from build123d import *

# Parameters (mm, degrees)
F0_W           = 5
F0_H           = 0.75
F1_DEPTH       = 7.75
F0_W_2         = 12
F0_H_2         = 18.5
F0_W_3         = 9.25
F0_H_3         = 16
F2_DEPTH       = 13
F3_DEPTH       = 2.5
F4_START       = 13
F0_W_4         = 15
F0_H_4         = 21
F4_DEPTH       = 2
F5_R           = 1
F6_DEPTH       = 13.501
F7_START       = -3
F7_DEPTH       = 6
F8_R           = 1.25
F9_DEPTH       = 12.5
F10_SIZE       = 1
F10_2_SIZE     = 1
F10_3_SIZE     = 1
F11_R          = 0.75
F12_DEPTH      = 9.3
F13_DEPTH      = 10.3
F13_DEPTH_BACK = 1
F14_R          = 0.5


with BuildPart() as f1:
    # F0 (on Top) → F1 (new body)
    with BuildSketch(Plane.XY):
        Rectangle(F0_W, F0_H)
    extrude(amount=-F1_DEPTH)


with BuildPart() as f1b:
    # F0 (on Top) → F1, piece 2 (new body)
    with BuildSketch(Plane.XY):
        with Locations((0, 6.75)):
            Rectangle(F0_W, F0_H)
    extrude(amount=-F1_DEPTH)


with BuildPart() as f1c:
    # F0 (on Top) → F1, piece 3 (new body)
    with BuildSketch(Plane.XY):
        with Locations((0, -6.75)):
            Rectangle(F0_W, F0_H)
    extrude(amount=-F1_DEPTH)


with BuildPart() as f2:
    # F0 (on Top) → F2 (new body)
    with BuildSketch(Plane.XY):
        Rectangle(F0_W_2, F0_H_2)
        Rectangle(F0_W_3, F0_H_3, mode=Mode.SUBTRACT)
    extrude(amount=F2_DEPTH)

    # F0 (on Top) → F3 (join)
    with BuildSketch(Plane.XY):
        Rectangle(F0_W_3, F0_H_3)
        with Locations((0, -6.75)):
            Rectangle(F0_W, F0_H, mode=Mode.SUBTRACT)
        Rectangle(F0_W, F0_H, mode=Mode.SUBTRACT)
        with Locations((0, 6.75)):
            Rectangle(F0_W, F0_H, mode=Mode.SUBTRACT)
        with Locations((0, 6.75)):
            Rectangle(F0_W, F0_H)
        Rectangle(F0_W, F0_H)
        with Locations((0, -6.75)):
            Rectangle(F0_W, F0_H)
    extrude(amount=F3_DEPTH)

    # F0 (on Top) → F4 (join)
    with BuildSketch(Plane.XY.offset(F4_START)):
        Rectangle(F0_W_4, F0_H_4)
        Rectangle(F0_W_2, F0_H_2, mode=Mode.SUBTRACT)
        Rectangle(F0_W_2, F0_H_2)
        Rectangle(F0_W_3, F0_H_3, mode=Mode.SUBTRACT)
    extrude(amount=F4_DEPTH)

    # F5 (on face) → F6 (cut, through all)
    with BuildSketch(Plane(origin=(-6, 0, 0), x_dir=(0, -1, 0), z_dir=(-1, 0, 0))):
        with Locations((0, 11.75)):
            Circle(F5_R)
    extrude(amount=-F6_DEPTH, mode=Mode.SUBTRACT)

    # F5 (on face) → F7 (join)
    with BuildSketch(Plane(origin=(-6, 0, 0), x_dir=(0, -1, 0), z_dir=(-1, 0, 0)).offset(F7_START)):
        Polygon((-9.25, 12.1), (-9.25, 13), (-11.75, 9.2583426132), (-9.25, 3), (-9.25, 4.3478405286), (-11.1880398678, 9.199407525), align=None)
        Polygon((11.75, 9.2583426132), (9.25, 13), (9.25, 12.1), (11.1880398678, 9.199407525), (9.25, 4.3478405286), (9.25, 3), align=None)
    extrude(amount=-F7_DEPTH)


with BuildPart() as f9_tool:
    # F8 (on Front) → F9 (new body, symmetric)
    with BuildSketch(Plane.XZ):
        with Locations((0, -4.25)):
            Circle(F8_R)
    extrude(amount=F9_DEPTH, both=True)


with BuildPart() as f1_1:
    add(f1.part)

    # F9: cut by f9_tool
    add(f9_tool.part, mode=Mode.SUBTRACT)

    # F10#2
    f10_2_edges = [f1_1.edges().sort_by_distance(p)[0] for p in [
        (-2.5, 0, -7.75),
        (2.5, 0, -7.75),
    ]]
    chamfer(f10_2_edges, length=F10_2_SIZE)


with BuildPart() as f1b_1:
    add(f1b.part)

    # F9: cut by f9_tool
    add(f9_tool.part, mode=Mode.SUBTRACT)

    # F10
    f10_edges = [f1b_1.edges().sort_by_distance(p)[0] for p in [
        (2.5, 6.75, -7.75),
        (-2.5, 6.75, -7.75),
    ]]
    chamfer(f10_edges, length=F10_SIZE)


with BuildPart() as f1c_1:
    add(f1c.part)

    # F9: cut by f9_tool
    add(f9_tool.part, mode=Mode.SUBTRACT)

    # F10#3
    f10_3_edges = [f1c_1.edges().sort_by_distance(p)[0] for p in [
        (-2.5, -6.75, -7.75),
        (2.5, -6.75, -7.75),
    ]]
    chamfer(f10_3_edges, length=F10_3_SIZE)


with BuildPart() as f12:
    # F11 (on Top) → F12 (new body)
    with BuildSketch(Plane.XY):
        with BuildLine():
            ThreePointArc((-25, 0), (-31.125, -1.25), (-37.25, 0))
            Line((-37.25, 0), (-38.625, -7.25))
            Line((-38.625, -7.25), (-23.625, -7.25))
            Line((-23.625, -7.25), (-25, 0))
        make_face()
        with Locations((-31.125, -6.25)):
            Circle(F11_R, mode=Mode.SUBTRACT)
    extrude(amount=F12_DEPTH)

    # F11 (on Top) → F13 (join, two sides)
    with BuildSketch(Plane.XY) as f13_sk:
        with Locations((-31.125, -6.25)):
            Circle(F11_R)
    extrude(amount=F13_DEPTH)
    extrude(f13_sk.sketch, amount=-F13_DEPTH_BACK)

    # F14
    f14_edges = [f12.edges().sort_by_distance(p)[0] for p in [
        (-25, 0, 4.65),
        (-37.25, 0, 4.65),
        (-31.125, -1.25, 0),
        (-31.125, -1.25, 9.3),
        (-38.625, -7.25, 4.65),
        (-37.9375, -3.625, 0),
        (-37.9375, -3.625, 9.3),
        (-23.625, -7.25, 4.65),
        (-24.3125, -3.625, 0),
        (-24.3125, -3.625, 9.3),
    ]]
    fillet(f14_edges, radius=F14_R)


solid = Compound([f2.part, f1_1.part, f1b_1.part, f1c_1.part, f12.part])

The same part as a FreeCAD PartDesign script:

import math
import FreeCAD as App
import Part
import Sketcher
from FreeCAD import Vector


def edges_at(feature, points):
    """Names of the edges that pass closest to the given points."""
    edges = feature.Shape.Edges
    near = lambda p: min(range(len(edges)), key=lambda i: edges[i].distToShape(Part.Vertex(*p))[0])
    return sorted({f"Edge{near(p) + 1}" for p in points})


def add_polygon(sketch, points):
    """Adds a closed chain of lines whose ends are joined by coincident constraints."""
    first, n = sketch.GeometryCount, len(points)
    for a, b in zip(points, points[1:] + points[:1]):
        sketch.addGeometry(Part.LineSegment(App.Vector(*a, 0), App.Vector(*b, 0)), False)
    for i in range(n):
        sketch.addConstraint(Sketcher.Constraint("Coincident", first + i, 2, first + (i + 1) % n, 1))

doc = App.newDocument("Part")
body = doc.addObject("PartDesign::Body", "Body")

sketch1 = body.newObject("Sketcher::SketchObject", "Sketch")
sketch1.AttachmentSupport = (doc.getObject("XY_Plane"), [""])
sketch1.MapMode = "FlatFace"
add_polygon(sketch1, [(-2.5, 0.375), (-2.5, -0.375), (2.5, -0.375), (2.5, 0.375)])
sketch1.addConstraint([
    Sketcher.Constraint("Vertical", 0),
    Sketcher.Constraint("Horizontal", 1),
    Sketcher.Constraint("Vertical", 2),
    Sketcher.Constraint("Horizontal", 3),
    Sketcher.Constraint("Symmetric", 0, 2, 2, 2, -1, 1),
    Sketcher.Constraint("DistanceX", 1, 1, 1, 2, 5.0),
    Sketcher.Constraint("DistanceY", 0, 2, 0, 1, 0.75),
])
pad1 = body.newObject("PartDesign::Pad", "Pad")
pad1.Profile = sketch1
pad1.Length = 7.75
pad1.Reversed = True
body2 = doc.addObject("PartDesign::Body", "Body001")

sketch2 = body2.newObject("Sketcher::SketchObject", "Sketch001")
sketch2.AttachmentSupport = (doc.getObject("XY_Plane001"), [""])
sketch2.MapMode = "FlatFace"
add_polygon(sketch2, [(-2.5, 7.125), (-2.5, 6.375), (2.5, 6.375), (2.5, 7.125)])
sketch2.addConstraint([
    Sketcher.Constraint("Vertical", 0),
    Sketcher.Constraint("Horizontal", 1),
    Sketcher.Constraint("Vertical", 2),
    Sketcher.Constraint("Horizontal", 3),
    Sketcher.Constraint("DistanceX", 1, 1, 1, 2, 5.0),
    Sketcher.Constraint("DistanceY", 0, 2, 0, 1, 0.75),
    Sketcher.Constraint("DistanceX", 0, 2, -1, 1, 2.5),
    Sketcher.Constraint("DistanceY", -1, 1, 0, 2, 6.375),
])
pad2 = body2.newObject("PartDesign::Pad", "Pad001")
pad2.Profile = sketch2
pad2.Length = 7.75
pad2.Reversed = True
body3 = doc.addObject("PartDesign::Body", "Body002")

sketch3 = body3.newObject("Sketcher::SketchObject", "Sketch002")
sketch3.AttachmentSupport = (doc.getObject("XY_Plane002"), [""])
sketch3.MapMode = "FlatFace"
add_polygon(sketch3, [(-2.5, -6.375), (-2.5, -7.125), (2.5, -7.125), (2.5, -6.375)])
sketch3.addConstraint([
    Sketcher.Constraint("Vertical", 0),
    Sketcher.Constraint("Horizontal", 1),
    Sketcher.Constraint("Vertical", 2),
    Sketcher.Constraint("Horizontal", 3),
    Sketcher.Constraint("DistanceX", 1, 1, 1, 2, 5.0),
    Sketcher.Constraint("DistanceY", 0, 2, 0, 1, 0.75),
    Sketcher.Constraint("DistanceX", 0, 2, -1, 1, 2.5),
    Sketcher.Constraint("DistanceY", 0, 2, -1, 1, 7.125),
])
pad3 = body3.newObject("PartDesign::Pad", "Pad002")
pad3.Profile = sketch3
pad3.Length = 7.75
pad3.Reversed = True
body4 = doc.addObject("PartDesign::Body", "Body003")

sketch4 = body4.newObject("Sketcher::SketchObject", "Sketch003")
sketch4.AttachmentSupport = (doc.getObject("XY_Plane003"), [""])
sketch4.MapMode = "FlatFace"
add_polygon(sketch4, [(-6, 9.25), (-6, -9.25), (6, -9.25), (6, 9.25)])
add_polygon(sketch4, [(4.625, -8), (-4.625, -8), (-4.625, 8), (4.625, 8)])
sketch4.addConstraint([
    Sketcher.Constraint("Vertical", 0),
    Sketcher.Constraint("Horizontal", 1),
    Sketcher.Constraint("Vertical", 2),
    Sketcher.Constraint("Horizontal", 3),
    Sketcher.Constraint("Horizontal", 4),
    Sketcher.Constraint("Vertical", 5),
    Sketcher.Constraint("Horizontal", 6),
    Sketcher.Constraint("Vertical", 7),
    Sketcher.Constraint("Symmetric", 0, 2, 2, 2, -1, 1),
    Sketcher.Constraint("Symmetric", 4, 2, 6, 2, -1, 1),
    Sketcher.Constraint("DistanceX", 1, 1, 1, 2, 12.0),
    Sketcher.Constraint("DistanceY", 5, 1, 5, 2, 16.0),
    Sketcher.Constraint("DistanceY", 0, 2, 0, 1, 18.5),
    Sketcher.Constraint("DistanceX", 4, 2, 4, 1, 9.25),
])
pad4 = body4.newObject("PartDesign::Pad", "Pad003")
pad4.Profile = sketch4
pad4.Length = 13

sketch5 = body4.newObject("Sketcher::SketchObject", "Sketch004")
sketch5.AttachmentSupport = (doc.getObject("XY_Plane003"), [""])
sketch5.MapMode = "FlatFace"
add_polygon(sketch5, [(-4.625, 8), (-4.625, -8), (4.625, -8), (4.625, 8)])
sketch5.addConstraint([
    Sketcher.Constraint("Vertical", 0),
    Sketcher.Constraint("Horizontal", 1),
    Sketcher.Constraint("Vertical", 2),
    Sketcher.Constraint("Horizontal", 3),
    Sketcher.Constraint("Symmetric", 0, 2, 2, 2, -1, 1),
    Sketcher.Constraint("DistanceY", 0, 2, 0, 1, 16.0),
    Sketcher.Constraint("DistanceX", 1, 1, 1, 2, 9.25),
])
pad5 = body4.newObject("PartDesign::Pad", "Pad004")
pad5.Profile = sketch5
pad5.Length = 2.5

sketch6 = body4.newObject("Sketcher::SketchObject", "Sketch005")
sketch6.AttachmentSupport = (doc.getObject("XY_Plane003"), [""])
sketch6.MapMode = "FlatFace"
sketch6.AttachmentOffset = App.Placement(Vector(0, 0, 13), App.Rotation())
add_polygon(sketch6, [(-7.5, 10.5), (-7.5, -10.5), (7.5, -10.5), (7.5, 10.5)])
add_polygon(sketch6, [(4.625, -8), (-4.625, -8), (-4.625, 8), (4.625, 8)])
sketch6.addConstraint([
    Sketcher.Constraint("Vertical", 0),
    Sketcher.Constraint("Horizontal", 1),
    Sketcher.Constraint("Vertical", 2),
    Sketcher.Constraint("Horizontal", 3),
    Sketcher.Constraint("Horizontal", 4),
    Sketcher.Constraint("Vertical", 5),
    Sketcher.Constraint("Horizontal", 6),
    Sketcher.Constraint("Vertical", 7),
    Sketcher.Constraint("Symmetric", 0, 2, 2, 2, -1, 1),
    Sketcher.Constraint("Symmetric", 4, 2, 6, 2, -1, 1),
    Sketcher.Constraint("DistanceX", 1, 1, 1, 2, 15.0),
    Sketcher.Constraint("DistanceY", 0, 2, 0, 1, 21.0),
    Sketcher.Constraint("DistanceY", 5, 1, 5, 2, 16.0),
    Sketcher.Constraint("DistanceX", 4, 2, 4, 1, 9.25),
])
pad6 = body4.newObject("PartDesign::Pad", "Pad005")
pad6.Profile = sketch6
pad6.Length = 2

sketch7 = body4.newObject("Sketcher::SketchObject", "Sketch006")
sketch7.AttachmentSupport = (doc.getObject("YZ_Plane003"), [""])
sketch7.MapMode = "FlatFace"
sketch7.AttachmentOffset = App.Placement(Vector(0, 0, -6), App.Rotation())
sketch7.addGeometry(Part.Circle(Vector(0, 11.75, 0), Vector(0, 0, 1), 1), False)
sketch7.addConstraint([
    Sketcher.Constraint("PointOnObject", 0, 3, -2),
    Sketcher.Constraint("Diameter", 0, 2.0),
    Sketcher.Constraint("DistanceY", -1, 1, 0, 3, 11.75),
])
pocket1 = body4.newObject("PartDesign::Pocket", "Pocket")
pocket1.Profile = sketch7
pocket1.Type = "ThroughAll"
pocket1.Reversed = True

sketch8 = body4.newObject("Sketcher::SketchObject", "Sketch007")
sketch8.AttachmentSupport = (doc.getObject("YZ_Plane003"), [""])
sketch8.MapMode = "FlatFace"
sketch8.AttachmentOffset = App.Placement(Vector(0, 0, -3), App.Rotation())
add_polygon(sketch8, [(9.25, 12.1), (9.25, 13), (11.75, 9.258343), (9.25, 3), (9.25, 4.347841), (11.18804, 9.199408)])
add_polygon(sketch8, [(-11.75, 9.258343), (-9.25, 13), (-9.25, 12.1), (-11.18804, 9.199408), (-9.25, 4.347841), (-9.25, 3)])
sketch8.addConstraint([
    Sketcher.Constraint("Vertical", 0),
    Sketcher.Constraint("Vertical", 3),
    Sketcher.Constraint("Vertical", 7),
    Sketcher.Constraint("Vertical", 10),
    Sketcher.Constraint("Symmetric", 0, 2, 6, 2, -2),
    Sketcher.Constraint("Symmetric", 4, 2, 8, 2, -2),
    Sketcher.Constraint("Symmetric", 3, 2, 9, 2, -2),
    Sketcher.Constraint("Symmetric", 1, 2, 11, 2, -2),
    Sketcher.Constraint("Parallel", 2, 4),
    Sketcher.Constraint("Parallel", 1, 5),
    Sketcher.Constraint("Parallel", 6, 8),
    Sketcher.Constraint("Parallel", 9, 11),
    Sketcher.Constraint("Vertical", 0, 2, 2, 2),
    Sketcher.Constraint("DistanceY", 0, 1, 0, 2, 0.9),
    Sketcher.Constraint("DistanceY", -1, 1, 0, 2, 13.0),
    Sketcher.Constraint("DistanceY", -1, 1, 2, 2, 3.0),
    Sketcher.Constraint("Distance", 1, 4.5),
    Sketcher.Constraint("DistanceX", 0, 2, 1, 2, 2.5),
    Sketcher.Constraint("DistanceX", 6, 2, 0, 2, 18.5),
    Sketcher.Constraint("DistanceY", 3, 1, 3, 2, 1.347841),
])
pad7 = body4.newObject("PartDesign::Pad", "Pad006")
pad7.Profile = sketch8
pad7.Length = 6
body5 = doc.addObject("PartDesign::Body", "Body004")

sketch9 = body5.newObject("Sketcher::SketchObject", "Sketch008")
sketch9.AttachmentSupport = (doc.getObject("XZ_Plane004"), [""])
sketch9.MapMode = "FlatFace"
sketch9.addGeometry(Part.Circle(Vector(0, -4.25, 0), Vector(0, 0, 1), 1.25), False)
sketch9.addConstraint([
    Sketcher.Constraint("PointOnObject", 0, 3, -2),
    Sketcher.Constraint("Diameter", 0, 2.5),
    Sketcher.Constraint("DistanceY", 0, 3, -1, 1, 4.25),
])
pad8 = body5.newObject("PartDesign::Pad", "Pad007")
pad8.Profile = sketch9
pad8.Length = 25
pad8.Midplane = True
doc.recompute()

body6 = doc.addObject("PartDesign::Body", "Body005")
body6.BaseFeature = body5
boolean = body.newObject("PartDesign::Boolean", "Boolean")
boolean.Type = "Cut"
boolean.addObjects([body6])
doc.recompute()

chamfer = body.newObject("PartDesign::Chamfer", "Chamfer")
chamfer.Base = (boolean, edges_at(boolean, [(-2.5, 0, -7.75), (2.5, 0, -7.75)]))
chamfer.Size = 1
doc.recompute()

body7 = doc.addObject("PartDesign::Body", "Body006")
body7.BaseFeature = body5
boolean2 = body2.newObject("PartDesign::Boolean", "Boolean001")
boolean2.Type = "Cut"
boolean2.addObjects([body7])
doc.recompute()

chamfer2 = body2.newObject("PartDesign::Chamfer", "Chamfer001")
chamfer2.Base = (boolean2, edges_at(boolean2, [(2.5, 6.75, -7.75), (-2.5, 6.75, -7.75)]))
chamfer2.Size = 1
doc.recompute()

boolean3 = body3.newObject("PartDesign::Boolean", "Boolean002")
boolean3.Type = "Cut"
boolean3.addObjects([body5])
doc.recompute()

chamfer3 = body3.newObject("PartDesign::Chamfer", "Chamfer002")
chamfer3.Base = (boolean3, edges_at(boolean3, [(-2.5, -6.75, -7.75), (2.5, -6.75, -7.75)]))
chamfer3.Size = 1
body8 = doc.addObject("PartDesign::Body", "Body007")

sketch10 = body8.newObject("Sketcher::SketchObject", "Sketch009")
sketch10.AttachmentSupport = (doc.getObject("XY_Plane007"), [""])
sketch10.MapMode = "FlatFace"
sketch10.addGeometry([
    Part.ArcOfCircle(Part.Circle(Vector(-31.125, 14.38125, 0), Vector(0, 0, 1), 15.63125), math.radians(-113.069241), math.radians(-66.930759)),
    Part.LineSegment(Vector(-37.25, 0, 0), Vector(-38.625, -7.25, 0)),
    Part.LineSegment(Vector(-38.625, -7.25, 0), Vector(-23.625, -7.25, 0)),
    Part.LineSegment(Vector(-23.625, -7.25, 0), Vector(-25, 0, 0)),
    Part.Circle(Vector(-31.125, -6.25, 0), Vector(0, 0, 1), 0.75),
], False)
sketch10.addConstraint([
    Sketcher.Constraint("Coincident", 0, 1, 1, 1),
    Sketcher.Constraint("Coincident", 1, 2, 2, 1),
    Sketcher.Constraint("Coincident", 2, 2, 3, 1),
    Sketcher.Constraint("Coincident", 3, 2, 0, 2),
    Sketcher.Constraint("Horizontal", 2),
    Sketcher.Constraint("PointOnObject", 0, 1, -1),
    Sketcher.Constraint("PointOnObject", 3, 2, -1),
    Sketcher.Constraint("Vertical", 0, 3, 4, 3),
    Sketcher.Constraint("Equal", 1, 3),
    Sketcher.Constraint("Diameter", 4, 1.5),
    Sketcher.Constraint("DistanceX", 2, 1, 2, 2, 15.0),
    Sketcher.Constraint("DistanceX", 3, 2, -1, 1, 25.0),
    Sketcher.Constraint("DistanceY", 1, 2, 4, 3, 1.0),
    Sketcher.Constraint("DistanceY", 4, 3, -1, 1, 6.25),
    Sketcher.Constraint("DistanceX", 0, 1, -1, 1, 37.25),
    Sketcher.Constraint("Radius", 0, 15.63125),
])
pad9 = body8.newObject("PartDesign::Pad", "Pad008")
pad9.Profile = sketch10
pad9.Length = 9.3

sketch11 = body8.newObject("Sketcher::SketchObject", "Sketch010")
sketch11.AttachmentSupport = (doc.getObject("XY_Plane007"), [""])
sketch11.MapMode = "FlatFace"
sketch11.addGeometry(Part.Circle(Vector(-31.125, -6.25, 0), Vector(0, 0, 1), 0.75), False)
sketch11.addConstraint([
    Sketcher.Constraint("Diameter", 0, 1.5),
    Sketcher.Constraint("DistanceY", 0, 3, -1, 1, 6.25),
    Sketcher.Constraint("DistanceX", 0, 3, -1, 1, 31.125),
])
pad10 = body8.newObject("PartDesign::Pad", "Pad009")
pad10.Profile = sketch11
pad10.Type = "TwoLengths"
pad10.Length = 10.3
pad10.Length2 = 1
doc.recompute()

fillet = body8.newObject("PartDesign::Fillet", "Fillet")
fillet.Base = (pad10, edges_at(pad10, [
    (-25, 0, 4.65),
    (-37.25, 0, 4.65),
    (-31.125, -1.25, 0),
    (-31.125, -1.25, 9.3),
    (-38.625, -7.25, 4.65),
    (-37.938, -3.625, 0),
    (-37.938, -3.625, 9.3),
    (-23.625, -7.25, 4.65),
    (-24.312, -3.625, 0),
    (-24.312, -3.625, 9.3),
]))
fillet.Radius = 0.5

doc.recompute()
